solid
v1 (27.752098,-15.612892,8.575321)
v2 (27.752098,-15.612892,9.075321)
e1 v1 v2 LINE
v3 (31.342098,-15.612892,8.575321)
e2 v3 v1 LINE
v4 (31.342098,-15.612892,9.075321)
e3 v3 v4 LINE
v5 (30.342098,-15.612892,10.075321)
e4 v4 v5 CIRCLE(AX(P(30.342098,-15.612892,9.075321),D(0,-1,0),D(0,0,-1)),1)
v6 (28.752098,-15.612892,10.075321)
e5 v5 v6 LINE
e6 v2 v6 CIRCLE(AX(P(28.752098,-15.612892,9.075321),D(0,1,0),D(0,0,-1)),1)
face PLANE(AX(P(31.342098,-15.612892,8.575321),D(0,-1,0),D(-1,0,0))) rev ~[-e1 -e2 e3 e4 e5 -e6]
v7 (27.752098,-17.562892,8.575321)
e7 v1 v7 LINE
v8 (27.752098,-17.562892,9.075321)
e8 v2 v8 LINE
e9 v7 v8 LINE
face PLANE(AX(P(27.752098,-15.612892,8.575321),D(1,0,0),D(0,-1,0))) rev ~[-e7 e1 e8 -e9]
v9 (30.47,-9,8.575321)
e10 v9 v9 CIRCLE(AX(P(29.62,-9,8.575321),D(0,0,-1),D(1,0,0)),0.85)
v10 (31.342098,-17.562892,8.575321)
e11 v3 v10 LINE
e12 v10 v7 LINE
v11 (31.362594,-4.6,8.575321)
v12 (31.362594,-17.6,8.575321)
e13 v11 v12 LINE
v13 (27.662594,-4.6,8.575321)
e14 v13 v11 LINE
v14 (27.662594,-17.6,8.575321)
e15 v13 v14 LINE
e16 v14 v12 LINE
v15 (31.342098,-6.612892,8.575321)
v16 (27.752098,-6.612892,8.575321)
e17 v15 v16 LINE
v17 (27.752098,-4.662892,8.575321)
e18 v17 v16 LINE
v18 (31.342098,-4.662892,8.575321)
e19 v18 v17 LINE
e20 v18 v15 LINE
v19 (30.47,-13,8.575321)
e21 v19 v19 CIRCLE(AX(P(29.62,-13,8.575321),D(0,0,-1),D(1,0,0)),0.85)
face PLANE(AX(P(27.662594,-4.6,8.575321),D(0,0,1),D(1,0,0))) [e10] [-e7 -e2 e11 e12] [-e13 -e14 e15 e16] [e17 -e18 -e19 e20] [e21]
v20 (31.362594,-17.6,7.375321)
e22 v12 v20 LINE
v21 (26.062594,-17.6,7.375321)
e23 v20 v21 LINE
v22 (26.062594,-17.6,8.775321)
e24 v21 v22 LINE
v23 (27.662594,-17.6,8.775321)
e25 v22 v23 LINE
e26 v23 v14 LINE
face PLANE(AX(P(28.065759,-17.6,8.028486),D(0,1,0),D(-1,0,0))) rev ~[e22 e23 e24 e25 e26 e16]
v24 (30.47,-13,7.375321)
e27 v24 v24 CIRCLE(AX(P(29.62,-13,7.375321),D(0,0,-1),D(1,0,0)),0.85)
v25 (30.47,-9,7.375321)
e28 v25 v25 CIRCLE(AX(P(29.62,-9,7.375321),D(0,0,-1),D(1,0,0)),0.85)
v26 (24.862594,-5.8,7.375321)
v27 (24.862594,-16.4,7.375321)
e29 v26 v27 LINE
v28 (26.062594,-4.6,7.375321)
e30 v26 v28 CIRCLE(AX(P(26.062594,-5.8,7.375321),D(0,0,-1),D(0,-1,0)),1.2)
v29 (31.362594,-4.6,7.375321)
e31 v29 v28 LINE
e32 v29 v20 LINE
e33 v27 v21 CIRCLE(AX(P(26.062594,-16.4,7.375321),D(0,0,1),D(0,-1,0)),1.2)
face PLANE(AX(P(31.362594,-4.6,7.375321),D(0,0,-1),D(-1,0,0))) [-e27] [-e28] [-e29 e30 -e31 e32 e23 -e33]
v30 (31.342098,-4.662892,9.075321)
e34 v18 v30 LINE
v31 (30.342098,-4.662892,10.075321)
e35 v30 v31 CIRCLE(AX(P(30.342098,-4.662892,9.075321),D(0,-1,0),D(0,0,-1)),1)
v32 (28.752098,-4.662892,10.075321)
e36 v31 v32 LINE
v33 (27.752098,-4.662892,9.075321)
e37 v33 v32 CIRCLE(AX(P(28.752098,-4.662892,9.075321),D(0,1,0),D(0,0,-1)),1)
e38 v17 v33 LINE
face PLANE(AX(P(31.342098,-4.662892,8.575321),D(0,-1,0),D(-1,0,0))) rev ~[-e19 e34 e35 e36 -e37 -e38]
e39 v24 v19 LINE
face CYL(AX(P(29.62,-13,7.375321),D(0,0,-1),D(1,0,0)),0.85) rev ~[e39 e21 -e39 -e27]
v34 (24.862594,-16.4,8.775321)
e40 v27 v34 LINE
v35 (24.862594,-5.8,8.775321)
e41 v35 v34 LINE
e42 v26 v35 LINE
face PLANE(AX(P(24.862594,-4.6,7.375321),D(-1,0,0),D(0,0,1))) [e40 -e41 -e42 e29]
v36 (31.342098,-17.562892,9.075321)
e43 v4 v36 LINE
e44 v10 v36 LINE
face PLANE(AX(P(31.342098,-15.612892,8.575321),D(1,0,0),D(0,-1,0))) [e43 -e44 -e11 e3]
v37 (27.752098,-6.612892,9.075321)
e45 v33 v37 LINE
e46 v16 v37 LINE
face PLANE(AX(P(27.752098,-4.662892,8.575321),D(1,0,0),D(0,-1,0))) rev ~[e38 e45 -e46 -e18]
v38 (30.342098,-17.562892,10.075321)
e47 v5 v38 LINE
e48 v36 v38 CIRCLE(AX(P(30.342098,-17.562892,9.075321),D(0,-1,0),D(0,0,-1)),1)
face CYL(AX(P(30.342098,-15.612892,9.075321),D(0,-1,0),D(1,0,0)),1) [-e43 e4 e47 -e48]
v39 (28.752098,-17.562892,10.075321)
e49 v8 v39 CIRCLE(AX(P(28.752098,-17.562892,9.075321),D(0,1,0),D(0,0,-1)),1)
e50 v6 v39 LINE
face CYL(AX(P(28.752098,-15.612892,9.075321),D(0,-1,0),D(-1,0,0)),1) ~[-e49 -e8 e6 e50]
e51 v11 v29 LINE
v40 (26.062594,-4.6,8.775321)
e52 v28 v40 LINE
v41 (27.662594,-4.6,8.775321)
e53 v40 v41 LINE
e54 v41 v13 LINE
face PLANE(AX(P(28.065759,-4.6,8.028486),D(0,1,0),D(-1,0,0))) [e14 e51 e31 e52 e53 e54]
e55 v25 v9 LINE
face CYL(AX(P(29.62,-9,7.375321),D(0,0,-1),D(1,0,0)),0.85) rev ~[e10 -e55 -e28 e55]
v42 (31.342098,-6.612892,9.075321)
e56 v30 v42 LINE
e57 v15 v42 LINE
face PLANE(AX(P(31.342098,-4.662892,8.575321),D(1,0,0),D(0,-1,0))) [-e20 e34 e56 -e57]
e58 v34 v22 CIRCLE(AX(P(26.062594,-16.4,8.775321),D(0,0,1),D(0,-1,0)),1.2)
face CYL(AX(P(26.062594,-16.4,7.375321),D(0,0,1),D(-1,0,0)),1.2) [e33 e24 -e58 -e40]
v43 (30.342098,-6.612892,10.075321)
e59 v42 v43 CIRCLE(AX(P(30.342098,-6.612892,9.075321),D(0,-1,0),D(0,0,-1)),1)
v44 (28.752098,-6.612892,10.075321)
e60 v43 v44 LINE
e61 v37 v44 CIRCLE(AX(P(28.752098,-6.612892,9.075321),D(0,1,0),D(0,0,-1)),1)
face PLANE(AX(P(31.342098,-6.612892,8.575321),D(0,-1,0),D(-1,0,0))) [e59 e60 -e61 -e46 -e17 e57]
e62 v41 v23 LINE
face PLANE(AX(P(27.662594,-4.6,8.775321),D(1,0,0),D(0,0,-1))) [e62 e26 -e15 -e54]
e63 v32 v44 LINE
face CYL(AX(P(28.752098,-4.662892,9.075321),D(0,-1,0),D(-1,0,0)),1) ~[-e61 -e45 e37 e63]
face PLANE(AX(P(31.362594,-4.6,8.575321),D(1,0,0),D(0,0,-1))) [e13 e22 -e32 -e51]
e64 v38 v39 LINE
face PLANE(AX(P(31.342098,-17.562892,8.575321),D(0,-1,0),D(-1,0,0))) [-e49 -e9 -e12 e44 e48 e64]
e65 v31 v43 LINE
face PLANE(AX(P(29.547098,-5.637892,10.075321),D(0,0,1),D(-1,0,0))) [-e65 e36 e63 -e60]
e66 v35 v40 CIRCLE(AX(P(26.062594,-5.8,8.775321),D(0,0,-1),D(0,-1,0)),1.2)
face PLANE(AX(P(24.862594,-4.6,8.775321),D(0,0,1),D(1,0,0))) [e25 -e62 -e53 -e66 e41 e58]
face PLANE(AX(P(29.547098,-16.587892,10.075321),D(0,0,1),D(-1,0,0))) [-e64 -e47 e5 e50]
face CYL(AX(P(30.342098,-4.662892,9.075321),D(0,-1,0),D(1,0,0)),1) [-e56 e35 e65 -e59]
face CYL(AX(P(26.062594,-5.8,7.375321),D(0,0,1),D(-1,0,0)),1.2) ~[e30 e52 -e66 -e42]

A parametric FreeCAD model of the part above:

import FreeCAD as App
import Part
import Sketcher
from FreeCAD import Vector
Q = App.Units.Quantity


def edges_at(feature, points):
    """Names of the edges that pass closest to the given points."""
    edges = feature.Shape.Edges
    near = lambda p: min(range(len(edges)), key=lambda i: edges[i].distToShape(Part.Vertex(*p))[0])
    return sorted({f"Edge{near(p) + 1}" for p in points})


def add_polygon(sketch, points):
    """Adds a closed chain of lines whose ends are joined by coincident constraints."""
    first, n = sketch.GeometryCount, len(points)
    for a, b in zip(points, points[1:] + points[:1]):
        sketch.addGeometry(Part.LineSegment(App.Vector(*a, 0), App.Vector(*b, 0)), False)
    for i in range(n):
        sketch.addConstraint(Sketcher.Constraint("Coincident", first + i, 2, first + (i + 1) % n, 1))

doc = App.newDocument("Part")
params = doc.addObject("Spreadsheet::Sheet", "Params")
for row, (alias, value) in enumerate([
    ("sketch1_width", "2.8 mm"),
    ("sketch1_width2", "6.5 mm"),
    ("sketch1_height", "1.4 mm"),
    ("sketch1_height2", "1.2 mm"),
    ("pad1_length", "13 mm"),
    ("sketch2_diameter", "1.7 mm"),
    ("pocket1_length", "5 mm"),
    ("fillet_radius", "1.2 mm"),
    ("sketch3_width", "3.59 mm"),
    ("sketch3_height", "1.95 mm"),
    ("pad2_length", "1.5 mm"),
    ("fillet2_radius", "1 mm"),
], start=1):
    params.set(f"A{row}", alias)
    params.set(f"B{row}", "=" + value)
    params.setAlias(f"B{row}", alias)

body = doc.addObject("PartDesign::Body", "Body")

# Sketch on XZ plane
sketch1 = doc.addObject("Sketcher::SketchObject", "Sketch")
body.addObject(sketch1)
sketch1.AttachmentSupport = (doc.XZ_Plane, [""])
sketch1.MapMode = "FlatFace"
sketch1.AttachmentOffset = App.Placement(Vector(0, 0, -4), App.Rotation())
add_polygon(sketch1, [(27.66, 8.18), (24.86, 8.18), (24.86, 6.78), (31.36, 6.78), (31.36, 7.98), (27.66, 7.98)])  # lines 0-5
sketch1.addConstraint([
    Sketcher.Constraint("Horizontal", 0),
    Sketcher.Constraint("Vertical", 1),
    Sketcher.Constraint("Horizontal", 2),
    Sketcher.Constraint("Vertical", 3),
    Sketcher.Constraint("Horizontal", 4),
    Sketcher.Constraint("Vertical", 5),
    Sketcher.Constraint("DistanceX", 0, 2, 0, 1, Q("2.8 mm")),
    Sketcher.Constraint("DistanceX", 2, 1, 2, 2, Q("6.5 mm")),
    Sketcher.Constraint("DistanceY", 1, 2, 1, 1, Q("1.4 mm")),
    Sketcher.Constraint("DistanceY", 3, 1, 3, 2, Q("1.2 mm")),
    Sketcher.Constraint("DistanceY", -1, 1, 0, 2, Q("8.175321 mm")),
    Sketcher.Constraint("DistanceX", -1, 1, 0, 2, Q("24.862594 mm")),
])
sketch1.setExpression("Constraints[12]", "Params.sketch1_width")
sketch1.setExpression("Constraints[13]", "Params.sketch1_width2")
sketch1.setExpression("Constraints[14]", "Params.sketch1_height")
sketch1.setExpression("Constraints[15]", "Params.sketch1_height2")
pad1 = doc.addObject("PartDesign::Pad", "Pad")
body.addObject(pad1)
pad1.Profile = sketch1
pad1.setExpression("Length", "Params.pad1_length")

# Sketch on XY plane
sketch2 = doc.addObject("Sketcher::SketchObject", "Sketch001")
body.addObject(sketch2)
sketch2.AttachmentSupport = (doc.XY_Plane, [""])
sketch2.MapMode = "FlatFace"
sketch2.AttachmentOffset = App.Placement(Vector(0, 0, 6.775321), App.Rotation())
sketch2.addGeometry([
    Part.Circle(Vector(29.6, -4.4, 0), Vector(0, 0, 1), 0.8),
    Part.Circle(Vector(29.6, -0.4, 0), Vector(0, 0, 1), 0.8),
], False)
sketch2.addConstraint([
    Sketcher.Constraint("Equal", 0, 1),
    Sketcher.Constraint("Vertical", 0, 3, 1, 3),
    Sketcher.Constraint("Diameter", 0, Q("1.7 mm")),
    Sketcher.Constraint("DistanceY", 0, 3, 1, 3, Q("4 mm")),
    Sketcher.Constraint("DistanceY", 0, 3, -1, 1, Q("4.4 mm")),
    Sketcher.Constraint("DistanceX", -1, 1, 0, 3, Q("29.62 mm")),
])
sketch2.setExpression("Constraints[2]", "Params.sketch2_diameter")
pocket1 = doc.addObject("PartDesign::Pocket", "Pocket")
body.addObject(pocket1)
pocket1.Profile = sketch2
pocket1.setExpression("Length", "Params.pocket1_length")
pocket1.Reversed = True
doc.recompute()

fillet = doc.addObject("PartDesign::Fillet", "Fillet")
body.addObject(fillet)
fillet.Base = (pocket1, edges_at(pocket1, [(24.863, -9, 7.475), (24.863, 4, 7.475)]))
fillet.setExpression("Radius", "Params.fillet_radius")

# Sketch on XY plane
sketch3 = doc.addObject("Sketcher::SketchObject", "Sketch002")
body.addObject(sketch3)
sketch3.AttachmentSupport = (doc.XY_Plane, [""])
sketch3.MapMode = "FlatFace"
sketch3.AttachmentOffset = App.Placement(Vector(0, 0, 7.975321), App.Rotation())
add_polygon(sketch3, [(31.3, -9), (31.3, -7), (27.8, -7), (27.8, -9)])  # lines 0-3
add_polygon(sketch3, [(31.3, 2), (31.3, 3.9), (27.8, 3.9), (27.8, 2)])  # lines 4-7
sketch3.addConstraint([
    Sketcher.Constraint("Vertical", 0),
    Sketcher.Constraint("Horizontal", 1),
    Sketcher.Constraint("Vertical", 2),
    Sketcher.Constraint("Horizontal", 3),
    Sketcher.Constraint("Vertical", 4),
    Sketcher.Constraint("Horizontal", 5),
    Sketcher.Constraint("Vertical", 6),
    Sketcher.Constraint("Horizontal", 7),
    Sketcher.Constraint("Vertical", 3, 2, 4, 2),
    Sketcher.Constraint("Vertical", 2, 2, 5, 2),
    Sketcher.Constraint("Equal", 2, 4),
    Sketcher.Constraint("DistanceY", 1, 2, 6, 2, Q("9 mm")),
    Sketcher.Constraint("DistanceX", 1, 2, 1, 1, Q("3.59 mm")),
    Sketcher.Constraint("DistanceY", 0, 1, 0, 2, Q("1.95 mm")),
    Sketcher.Constraint("DistanceX", -1, 1, 0, 2, Q("31.342098 mm")),
    Sketcher.Constraint("DistanceY", -1, 1, 6, 2, Q("1.987108 mm")),
])
sketch3.setExpression("Constraints[20]", "Params.sketch3_width")
sketch3.setExpression("Constraints[21]", "Params.sketch3_height")
pad2 = doc.addObject("PartDesign::Pad", "Pad001")
body.addObject(pad2)
pad2.Profile = sketch3
pad2.setExpression("Length", "Params.pad2_length")
doc.recompute()

fillet2 = doc.addObject("PartDesign::Fillet", "Fillet001")
body.addObject(fillet2)
fillet2.Base = (pad2, edges_at(pad2, [
    (27.752, 2.962, 9.475),
    (31.342, 2.962, 9.475),
    (27.752, -7.988, 9.475),
    (31.342, -7.988, 9.475),
]))
fillet2.setExpression("Radius", "Params.fillet2_radius")
body2 = doc.addObject("PartDesign::Body", "Body001")
doc.recompute()

body.Placement = App.Placement(Vector(0, -8.6, 0.6), App.Rotation(Vector(0, 0, 1), 0))
boolean = doc.addObject("PartDesign::Boolean", "Boolean")
body2.addObject(boolean)
boolean.Type = "Fuse"
boolean.addObjects([body])

doc.recompute()
